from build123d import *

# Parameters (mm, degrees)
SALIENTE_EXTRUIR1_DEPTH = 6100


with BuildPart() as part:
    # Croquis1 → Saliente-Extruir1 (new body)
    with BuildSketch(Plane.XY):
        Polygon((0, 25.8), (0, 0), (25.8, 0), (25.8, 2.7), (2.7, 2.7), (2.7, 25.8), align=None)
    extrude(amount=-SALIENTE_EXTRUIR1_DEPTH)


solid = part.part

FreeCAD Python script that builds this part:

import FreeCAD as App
import Part
import Sketcher

V = App.Vector

doc = App.newDocument("Part")
body = doc.addObject("PartDesign::Body", "Body")

# Sketch on XY plane
sketch1 = body.newObject("Sketcher::SketchObject", "Sketch")
sketch1.AttachmentSupport = (doc.getObject("XY_Plane"), [""])
sketch1.MapMode = "FlatFace"
sketch1.addGeometry(Part.LineSegment(V(0, 25.8, 0), V(0, 0, 0)), False)
sketch1.addGeometry(Part.LineSegment(V(0, 0, 0), V(25.8, 0, 0)), False)
sketch1.addGeometry(Part.LineSegment(V(25.8, 0, 0), V(25.8, 2.7, 0)), False)
sketch1.addGeometry(Part.LineSegment(V(25.8, 2.7, 0), V(2.7, 2.7, 0)), False)
sketch1.addGeometry(Part.LineSegment(V(2.7, 2.7, 0), V(2.7, 25.8, 0)), False)
sketch1.addGeometry(Part.LineSegment(V(2.7, 25.8, 0), V(0, 25.8, 0)), False)
sketch1.addConstraint(Sketcher.Constraint("Coincident", 0, 2, 1, 1))
sketch1.addConstraint(Sketcher.Constraint("Coincident", 1, 2, 2, 1))
sketch1.addConstraint(Sketcher.Constraint("Coincident", 2, 2, 3, 1))
sketch1.addConstraint(Sketcher.Constraint("Coincident", 3, 2, 4, 1))
sketch1.addConstraint(Sketcher.Constraint("Coincident", 4, 2, 5, 1))
sketch1.addConstraint(Sketcher.Constraint("Coincident", 5, 2, 0, 1))
sketch1.addConstraint(Sketcher.Constraint("Vertical", 0))
sketch1.addConstraint(Sketcher.Constraint("Horizontal", 1))
sketch1.addConstraint(Sketcher.Constraint("Vertical", 2))
sketch1.addConstraint(Sketcher.Constraint("Horizontal", 3))
sketch1.addConstraint(Sketcher.Constraint("Vertical", 4))
sketch1.addConstraint(Sketcher.Constraint("Horizontal", 5))
sketch1.addConstraint(Sketcher.Constraint("Coincident", 0, 2, -1, 1))
sketch1.addConstraint(Sketcher.Constraint("Equal", 1, 0))
sketch1.addConstraint(Sketcher.Constraint("Equal", 5, 2))
sketch1.addConstraint(Sketcher.Constraint("DistanceX", 1, 1, 1, 2, 25.8))
sketch1.addConstraint(Sketcher.Constraint("DistanceX", 3, 2, 3, 1, 23.1))
pad1 = body.newObject("PartDesign::Pad", "Pad")
pad1.Profile = sketch1
pad1.Length = 6100
pad1.Reversed = True

doc.recompute()
